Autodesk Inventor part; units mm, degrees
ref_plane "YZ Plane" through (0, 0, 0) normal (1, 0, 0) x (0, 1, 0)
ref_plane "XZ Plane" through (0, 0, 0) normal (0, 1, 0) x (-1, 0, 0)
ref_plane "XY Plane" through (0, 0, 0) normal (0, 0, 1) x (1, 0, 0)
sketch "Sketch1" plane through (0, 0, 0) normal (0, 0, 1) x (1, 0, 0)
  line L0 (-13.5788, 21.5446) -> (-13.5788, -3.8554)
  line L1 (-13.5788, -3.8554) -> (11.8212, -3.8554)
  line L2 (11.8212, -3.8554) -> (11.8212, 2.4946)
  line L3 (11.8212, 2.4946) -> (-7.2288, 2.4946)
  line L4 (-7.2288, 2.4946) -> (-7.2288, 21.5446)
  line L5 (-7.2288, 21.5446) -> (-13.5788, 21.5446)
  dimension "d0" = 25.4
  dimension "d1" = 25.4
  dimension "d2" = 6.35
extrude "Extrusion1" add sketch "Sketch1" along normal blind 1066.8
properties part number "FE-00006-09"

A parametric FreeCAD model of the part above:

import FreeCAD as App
import Part
import Sketcher

V = App.Vector
Q = App.Units.Quantity


def add_polygon(sketch, points):
    """Adds a closed chain of lines whose ends are joined by coincident constraints."""
    first, n = sketch.GeometryCount, len(points)
    for a, b in zip(points, points[1:] + points[:1]):
        sketch.addGeometry(Part.LineSegment(App.Vector(*a, 0), App.Vector(*b, 0)), False)
    for i in range(n):
        sketch.addConstraint(Sketcher.Constraint("Coincident", first + i, 2, first + (i + 1) % n, 1))

doc = App.newDocument("Part")
body = doc.addObject("PartDesign::Body", "Body")

sketch1 = body.newObject("Sketcher::SketchObject", "Sketch")
sketch1.AttachmentSupport = (doc.getObject("XY_Plane"), [""])
sketch1.MapMode = "FlatFace"
add_polygon(sketch1, [(-7, 22), (-14, 22), (-14, -4), (12, -4), (12, 2), (-7, 2)])
sketch1.addConstraint([
    Sketcher.Constraint("Horizontal", 0),
    Sketcher.Constraint("Vertical", 1),
    Sketcher.Constraint("Horizontal", 2),
    Sketcher.Constraint("Vertical", 3),
    Sketcher.Constraint("Horizontal", 4),
    Sketcher.Constraint("Vertical", 5),
    Sketcher.Constraint("Equal", 2, 1),
    Sketcher.Constraint("Equal", 0, 3),
    Sketcher.Constraint("DistanceX", 2, 1, 2, 2, Q("1 in")),
    Sketcher.Constraint("DistanceX", 0, 2, 0, 1, Q("0.25 in")),
    Sketcher.Constraint("DistanceX", 0, 2, -1, 1, Q("0.5346 in")),
    Sketcher.Constraint("DistanceY", -1, 1, 0, 2, Q("21.5446 mm")),
])
pad1 = body.newObject("PartDesign::Pad", "Pad")
pad1.Profile = sketch1
pad1.Length = Q("42 in")

doc.recompute()
